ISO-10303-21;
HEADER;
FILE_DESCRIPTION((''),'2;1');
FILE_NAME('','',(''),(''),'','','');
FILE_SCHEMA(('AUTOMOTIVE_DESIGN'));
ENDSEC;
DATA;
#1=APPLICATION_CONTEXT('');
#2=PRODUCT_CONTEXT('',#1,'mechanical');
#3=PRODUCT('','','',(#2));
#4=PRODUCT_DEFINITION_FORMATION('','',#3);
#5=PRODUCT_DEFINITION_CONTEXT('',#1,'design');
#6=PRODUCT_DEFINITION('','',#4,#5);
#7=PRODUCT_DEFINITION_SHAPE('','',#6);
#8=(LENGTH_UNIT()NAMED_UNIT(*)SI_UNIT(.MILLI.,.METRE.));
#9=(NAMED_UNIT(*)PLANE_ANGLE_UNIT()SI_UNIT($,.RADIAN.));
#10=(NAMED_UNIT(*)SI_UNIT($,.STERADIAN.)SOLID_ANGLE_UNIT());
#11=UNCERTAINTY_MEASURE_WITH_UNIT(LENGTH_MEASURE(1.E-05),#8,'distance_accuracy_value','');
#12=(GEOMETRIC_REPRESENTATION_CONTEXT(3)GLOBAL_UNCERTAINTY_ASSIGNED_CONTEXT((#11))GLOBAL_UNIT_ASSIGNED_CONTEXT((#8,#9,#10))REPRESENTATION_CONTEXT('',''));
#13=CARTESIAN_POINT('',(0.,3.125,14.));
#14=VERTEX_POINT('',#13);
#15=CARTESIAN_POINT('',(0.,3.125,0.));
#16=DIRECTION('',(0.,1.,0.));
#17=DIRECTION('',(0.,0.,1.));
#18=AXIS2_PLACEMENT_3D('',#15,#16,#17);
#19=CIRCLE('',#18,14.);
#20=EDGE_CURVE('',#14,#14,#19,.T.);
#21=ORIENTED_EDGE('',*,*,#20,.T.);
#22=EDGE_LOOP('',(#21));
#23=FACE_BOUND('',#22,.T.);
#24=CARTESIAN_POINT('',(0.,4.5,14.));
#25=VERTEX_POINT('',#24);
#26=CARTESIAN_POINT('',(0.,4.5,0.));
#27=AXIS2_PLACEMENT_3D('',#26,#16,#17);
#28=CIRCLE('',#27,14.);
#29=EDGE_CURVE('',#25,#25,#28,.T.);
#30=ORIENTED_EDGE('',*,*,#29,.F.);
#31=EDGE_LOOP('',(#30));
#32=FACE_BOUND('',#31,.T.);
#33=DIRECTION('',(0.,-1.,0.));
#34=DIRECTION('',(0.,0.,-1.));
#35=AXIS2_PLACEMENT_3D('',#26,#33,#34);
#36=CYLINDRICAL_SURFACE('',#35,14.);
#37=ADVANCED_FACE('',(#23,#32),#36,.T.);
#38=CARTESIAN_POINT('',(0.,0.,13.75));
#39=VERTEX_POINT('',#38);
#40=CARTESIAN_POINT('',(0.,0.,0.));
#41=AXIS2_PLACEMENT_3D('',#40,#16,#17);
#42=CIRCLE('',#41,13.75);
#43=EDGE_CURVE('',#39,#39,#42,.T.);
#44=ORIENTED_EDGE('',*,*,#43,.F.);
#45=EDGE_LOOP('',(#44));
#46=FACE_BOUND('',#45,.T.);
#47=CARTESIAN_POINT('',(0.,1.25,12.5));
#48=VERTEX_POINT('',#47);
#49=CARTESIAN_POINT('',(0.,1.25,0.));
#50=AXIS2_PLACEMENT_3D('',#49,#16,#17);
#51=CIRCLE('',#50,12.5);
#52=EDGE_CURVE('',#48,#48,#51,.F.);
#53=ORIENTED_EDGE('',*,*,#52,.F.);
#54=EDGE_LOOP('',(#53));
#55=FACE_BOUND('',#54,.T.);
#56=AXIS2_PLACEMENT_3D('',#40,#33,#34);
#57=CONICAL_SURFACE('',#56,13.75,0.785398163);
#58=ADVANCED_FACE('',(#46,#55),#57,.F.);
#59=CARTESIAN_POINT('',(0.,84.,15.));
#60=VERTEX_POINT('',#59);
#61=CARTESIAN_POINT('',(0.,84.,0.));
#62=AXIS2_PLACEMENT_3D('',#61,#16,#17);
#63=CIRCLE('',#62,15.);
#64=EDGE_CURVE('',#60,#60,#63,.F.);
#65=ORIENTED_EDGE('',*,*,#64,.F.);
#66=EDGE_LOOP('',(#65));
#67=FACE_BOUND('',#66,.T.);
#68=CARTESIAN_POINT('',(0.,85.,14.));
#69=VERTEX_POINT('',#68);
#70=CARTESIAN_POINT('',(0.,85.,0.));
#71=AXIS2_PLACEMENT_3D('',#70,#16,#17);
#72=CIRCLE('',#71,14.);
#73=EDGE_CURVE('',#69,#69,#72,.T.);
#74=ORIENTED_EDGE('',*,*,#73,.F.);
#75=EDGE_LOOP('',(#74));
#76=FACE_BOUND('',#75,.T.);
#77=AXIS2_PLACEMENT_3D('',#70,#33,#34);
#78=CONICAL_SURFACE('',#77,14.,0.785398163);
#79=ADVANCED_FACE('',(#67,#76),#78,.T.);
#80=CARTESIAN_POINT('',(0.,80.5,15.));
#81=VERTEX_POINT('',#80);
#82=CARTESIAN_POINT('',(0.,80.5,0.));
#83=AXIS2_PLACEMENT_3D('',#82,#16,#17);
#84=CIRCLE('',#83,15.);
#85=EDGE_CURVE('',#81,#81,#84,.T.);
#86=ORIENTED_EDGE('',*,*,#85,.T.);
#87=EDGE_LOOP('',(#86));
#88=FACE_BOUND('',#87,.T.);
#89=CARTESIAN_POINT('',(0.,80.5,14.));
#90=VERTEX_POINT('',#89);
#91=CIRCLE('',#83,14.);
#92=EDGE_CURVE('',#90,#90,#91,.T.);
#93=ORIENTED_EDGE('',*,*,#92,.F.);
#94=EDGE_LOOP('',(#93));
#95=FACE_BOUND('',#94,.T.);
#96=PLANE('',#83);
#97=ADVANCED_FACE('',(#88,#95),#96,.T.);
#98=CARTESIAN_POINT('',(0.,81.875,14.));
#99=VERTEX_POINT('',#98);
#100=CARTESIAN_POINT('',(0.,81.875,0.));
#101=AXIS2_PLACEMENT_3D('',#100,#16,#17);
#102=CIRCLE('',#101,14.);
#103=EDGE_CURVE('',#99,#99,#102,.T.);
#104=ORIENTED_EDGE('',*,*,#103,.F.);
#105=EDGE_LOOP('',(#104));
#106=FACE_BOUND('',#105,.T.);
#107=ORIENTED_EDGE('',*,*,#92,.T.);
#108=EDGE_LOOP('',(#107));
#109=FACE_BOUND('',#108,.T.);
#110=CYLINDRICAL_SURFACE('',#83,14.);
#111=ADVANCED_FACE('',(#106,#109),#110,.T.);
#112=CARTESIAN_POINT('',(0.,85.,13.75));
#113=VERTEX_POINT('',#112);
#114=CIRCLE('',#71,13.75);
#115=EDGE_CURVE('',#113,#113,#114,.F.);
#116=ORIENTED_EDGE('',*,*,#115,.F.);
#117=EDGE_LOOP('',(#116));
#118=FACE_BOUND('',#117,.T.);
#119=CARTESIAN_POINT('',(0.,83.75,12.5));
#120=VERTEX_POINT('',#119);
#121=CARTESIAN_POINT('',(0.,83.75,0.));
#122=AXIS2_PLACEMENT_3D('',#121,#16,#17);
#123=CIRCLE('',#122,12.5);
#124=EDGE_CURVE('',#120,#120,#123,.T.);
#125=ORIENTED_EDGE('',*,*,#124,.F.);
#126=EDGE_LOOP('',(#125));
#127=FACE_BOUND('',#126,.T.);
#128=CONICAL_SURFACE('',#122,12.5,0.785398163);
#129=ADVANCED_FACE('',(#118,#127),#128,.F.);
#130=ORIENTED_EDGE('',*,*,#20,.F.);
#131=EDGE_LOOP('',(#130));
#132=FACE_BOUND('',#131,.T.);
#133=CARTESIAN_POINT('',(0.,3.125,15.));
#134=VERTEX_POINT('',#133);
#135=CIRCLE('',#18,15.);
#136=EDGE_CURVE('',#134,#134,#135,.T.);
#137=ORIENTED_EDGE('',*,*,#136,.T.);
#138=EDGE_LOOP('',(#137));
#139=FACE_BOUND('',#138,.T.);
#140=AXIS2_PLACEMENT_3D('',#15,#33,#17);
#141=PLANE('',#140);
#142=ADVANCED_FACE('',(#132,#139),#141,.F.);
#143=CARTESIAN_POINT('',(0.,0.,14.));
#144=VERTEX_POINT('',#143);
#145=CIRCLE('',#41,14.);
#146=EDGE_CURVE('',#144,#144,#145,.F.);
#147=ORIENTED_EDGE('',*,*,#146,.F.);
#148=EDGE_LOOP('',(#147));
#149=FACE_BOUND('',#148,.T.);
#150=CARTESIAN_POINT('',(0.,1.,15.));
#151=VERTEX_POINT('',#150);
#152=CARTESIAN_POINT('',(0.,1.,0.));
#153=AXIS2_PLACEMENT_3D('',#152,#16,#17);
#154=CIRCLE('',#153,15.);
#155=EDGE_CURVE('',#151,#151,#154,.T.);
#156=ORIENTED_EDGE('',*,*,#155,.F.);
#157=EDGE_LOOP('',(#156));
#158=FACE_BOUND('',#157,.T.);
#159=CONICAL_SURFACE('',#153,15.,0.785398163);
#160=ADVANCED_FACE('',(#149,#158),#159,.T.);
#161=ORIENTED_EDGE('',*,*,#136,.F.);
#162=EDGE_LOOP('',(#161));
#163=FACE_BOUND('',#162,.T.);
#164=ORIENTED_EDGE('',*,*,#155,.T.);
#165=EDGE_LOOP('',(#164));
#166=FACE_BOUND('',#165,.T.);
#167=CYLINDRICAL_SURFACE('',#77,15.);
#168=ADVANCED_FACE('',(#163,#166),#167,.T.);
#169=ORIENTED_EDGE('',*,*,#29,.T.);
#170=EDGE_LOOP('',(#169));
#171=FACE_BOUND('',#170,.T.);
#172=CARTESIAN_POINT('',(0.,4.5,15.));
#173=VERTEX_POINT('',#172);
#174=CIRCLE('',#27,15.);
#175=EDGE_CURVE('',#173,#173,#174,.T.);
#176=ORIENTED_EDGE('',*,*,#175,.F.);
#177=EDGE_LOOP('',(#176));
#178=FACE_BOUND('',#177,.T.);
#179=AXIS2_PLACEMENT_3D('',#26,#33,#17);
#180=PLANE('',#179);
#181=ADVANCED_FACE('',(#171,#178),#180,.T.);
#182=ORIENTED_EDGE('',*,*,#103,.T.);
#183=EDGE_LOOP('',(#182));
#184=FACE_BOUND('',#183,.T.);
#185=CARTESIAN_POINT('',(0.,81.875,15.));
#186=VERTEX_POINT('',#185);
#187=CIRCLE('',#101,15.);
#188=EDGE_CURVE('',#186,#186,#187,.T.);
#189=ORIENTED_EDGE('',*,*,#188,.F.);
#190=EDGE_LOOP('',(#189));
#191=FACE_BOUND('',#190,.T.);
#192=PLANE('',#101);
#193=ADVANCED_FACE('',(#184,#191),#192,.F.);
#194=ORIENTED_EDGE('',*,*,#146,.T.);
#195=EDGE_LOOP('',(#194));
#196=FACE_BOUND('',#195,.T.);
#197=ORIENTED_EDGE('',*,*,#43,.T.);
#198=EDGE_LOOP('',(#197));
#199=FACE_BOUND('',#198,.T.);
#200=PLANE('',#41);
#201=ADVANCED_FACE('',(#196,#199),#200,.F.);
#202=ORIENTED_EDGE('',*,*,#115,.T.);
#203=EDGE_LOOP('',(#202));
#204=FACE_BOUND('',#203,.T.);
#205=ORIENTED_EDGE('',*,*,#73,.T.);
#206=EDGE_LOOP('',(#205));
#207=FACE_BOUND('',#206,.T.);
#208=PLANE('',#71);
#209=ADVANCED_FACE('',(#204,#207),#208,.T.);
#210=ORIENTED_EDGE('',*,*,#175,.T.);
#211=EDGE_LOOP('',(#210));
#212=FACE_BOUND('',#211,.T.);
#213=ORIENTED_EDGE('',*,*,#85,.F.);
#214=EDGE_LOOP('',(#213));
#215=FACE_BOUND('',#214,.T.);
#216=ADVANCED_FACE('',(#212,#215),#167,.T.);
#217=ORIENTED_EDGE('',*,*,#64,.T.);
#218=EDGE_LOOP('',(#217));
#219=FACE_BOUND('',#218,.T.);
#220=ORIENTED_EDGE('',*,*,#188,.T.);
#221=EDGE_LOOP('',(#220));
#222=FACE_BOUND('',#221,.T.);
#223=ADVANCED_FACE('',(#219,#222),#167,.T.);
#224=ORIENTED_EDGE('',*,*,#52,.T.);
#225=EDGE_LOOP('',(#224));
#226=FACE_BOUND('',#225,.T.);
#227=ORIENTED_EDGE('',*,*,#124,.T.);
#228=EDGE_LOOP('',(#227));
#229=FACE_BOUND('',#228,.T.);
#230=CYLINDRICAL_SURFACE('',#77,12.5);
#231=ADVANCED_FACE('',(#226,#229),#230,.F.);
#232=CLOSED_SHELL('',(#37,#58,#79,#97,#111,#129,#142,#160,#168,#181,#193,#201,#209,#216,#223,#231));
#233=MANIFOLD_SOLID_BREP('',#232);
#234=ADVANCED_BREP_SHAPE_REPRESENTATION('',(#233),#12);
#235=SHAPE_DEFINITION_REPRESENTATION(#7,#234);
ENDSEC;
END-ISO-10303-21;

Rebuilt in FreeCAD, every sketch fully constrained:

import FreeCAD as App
import Part
import Sketcher
Q = App.Units.Quantity


def edges_at(feature, points):
    """Names of the edges that pass closest to the given points."""
    edges = feature.Shape.Edges
    near = lambda p: min(range(len(edges)), key=lambda i: edges[i].distToShape(Part.Vertex(*p))[0])
    return sorted({f"Edge{near(p) + 1}" for p in points})

doc = App.newDocument("Part")
params = doc.addObject("Spreadsheet::Sheet", "Params")
for row, (alias, value) in enumerate([
    ("sketch1_diameter", "30 mm"),
    ("sketch1_diameter2", "25 mm"),
    ("pad1_length", "85 mm"),
    ("sketch2_diameter", "30 mm"),
    ("sketch2_diameter2", "28 mm"),
    ("pocket1_length", "1.375 mm"),
    ("chamfer_size", "1.25 mm"),
    ("chamfer2_size", "1 mm"),
], start=1):
    params.set(f"A{row}", alias)
    params.set(f"B{row}", "=" + value)
    params.setAlias(f"B{row}", alias)

body = doc.addObject("PartDesign::Body", "Body")

sketch1 = body.newObject("Sketcher::SketchObject", "Sketch")
sketch1.AttachmentSupport = (doc.getObject("XZ_Plane"), [""])
sketch1.MapMode = "FlatFace"
sketch1.addGeometry([
    Part.Circle(App.Vector(0, 0, 0), App.Vector(0, 0, 1), 15),
    Part.Circle(App.Vector(0, 0, 0), App.Vector(0, 0, 1), 12),
], False)
sketch1.addConstraint([
    Sketcher.Constraint("Coincident", 0, 3, -1, 1),
    Sketcher.Constraint("Coincident", 1, 3, -1, 1),
    Sketcher.Constraint("Diameter", 0, Q("30 mm")),
    Sketcher.Constraint("Diameter", 1, Q("25 mm")),
])
sketch1.setExpression("Constraints[2]", "Params.sketch1_diameter")
sketch1.setExpression("Constraints[3]", "Params.sketch1_diameter2")
pad1 = body.newObject("PartDesign::Pad", "Pad")
pad1.Profile = sketch1
pad1.setExpression("Length", "Params.pad1_length")
pad1.Reversed = True

sketch2 = body.newObject("Sketcher::SketchObject", "Sketch001")
sketch2.AttachmentSupport = (doc.getObject("XZ_Plane"), [""])
sketch2.MapMode = "FlatFace"
sketch2.AttachmentOffset = App.Placement(App.Vector(0, 0, -80.5), App.Rotation())
sketch2.addGeometry([
    Part.Circle(App.Vector(0, 0, 0), App.Vector(0, 0, 1), 15),
    Part.Circle(App.Vector(0, 0, 0), App.Vector(0, 0, 1), 14),
], False)
sketch2.addConstraint([
    Sketcher.Constraint("Coincident", 0, 3, -1, 1),
    Sketcher.Constraint("Coincident", 1, 3, -1, 1),
    Sketcher.Constraint("Diameter", 0, Q("30 mm")),
    Sketcher.Constraint("Diameter", 1, Q("28 mm")),
])
sketch2.setExpression("Constraints[2]", "Params.sketch2_diameter")
sketch2.setExpression("Constraints[3]", "Params.sketch2_diameter2")
pocket1 = body.newObject("PartDesign::Pocket", "Pocket")
pocket1.Profile = sketch2
pocket1.setExpression("Length", "Params.pocket1_length")
doc.recompute()

datumplane = body.newObject("PartDesign::Plane", "DatumPlane")
datumplane.AttachmentSupport = (doc.getObject("XZ_Plane"), [""])
datumplane.MapMode = "FlatFace"
datumplane.AttachmentOffset = App.Placement(App.Vector(0, 0, -42.5), App.Rotation())
mirrored = body.newObject("PartDesign::Mirrored", "Mirrored")
mirrored.Originals = [pocket1]
mirrored.MirrorPlane = (datumplane, [""])
body.Tip = mirrored
doc.recompute()

chamfer = body.newObject("PartDesign::Chamfer", "Chamfer")
chamfer.Base = (mirrored, edges_at(mirrored, [(0, 0, -12.5), (0, 85, -12.5)]))
chamfer.setExpression("Size", "Params.chamfer_size")
doc.recompute()

chamfer2 = body.newObject("PartDesign::Chamfer", "Chamfer001")
chamfer2.Base = (chamfer, edges_at(chamfer, [(0, 0, -15), (0, 85, -15)]))
chamfer2.setExpression("Size", "Params.chamfer2_size")

doc.recompute()
